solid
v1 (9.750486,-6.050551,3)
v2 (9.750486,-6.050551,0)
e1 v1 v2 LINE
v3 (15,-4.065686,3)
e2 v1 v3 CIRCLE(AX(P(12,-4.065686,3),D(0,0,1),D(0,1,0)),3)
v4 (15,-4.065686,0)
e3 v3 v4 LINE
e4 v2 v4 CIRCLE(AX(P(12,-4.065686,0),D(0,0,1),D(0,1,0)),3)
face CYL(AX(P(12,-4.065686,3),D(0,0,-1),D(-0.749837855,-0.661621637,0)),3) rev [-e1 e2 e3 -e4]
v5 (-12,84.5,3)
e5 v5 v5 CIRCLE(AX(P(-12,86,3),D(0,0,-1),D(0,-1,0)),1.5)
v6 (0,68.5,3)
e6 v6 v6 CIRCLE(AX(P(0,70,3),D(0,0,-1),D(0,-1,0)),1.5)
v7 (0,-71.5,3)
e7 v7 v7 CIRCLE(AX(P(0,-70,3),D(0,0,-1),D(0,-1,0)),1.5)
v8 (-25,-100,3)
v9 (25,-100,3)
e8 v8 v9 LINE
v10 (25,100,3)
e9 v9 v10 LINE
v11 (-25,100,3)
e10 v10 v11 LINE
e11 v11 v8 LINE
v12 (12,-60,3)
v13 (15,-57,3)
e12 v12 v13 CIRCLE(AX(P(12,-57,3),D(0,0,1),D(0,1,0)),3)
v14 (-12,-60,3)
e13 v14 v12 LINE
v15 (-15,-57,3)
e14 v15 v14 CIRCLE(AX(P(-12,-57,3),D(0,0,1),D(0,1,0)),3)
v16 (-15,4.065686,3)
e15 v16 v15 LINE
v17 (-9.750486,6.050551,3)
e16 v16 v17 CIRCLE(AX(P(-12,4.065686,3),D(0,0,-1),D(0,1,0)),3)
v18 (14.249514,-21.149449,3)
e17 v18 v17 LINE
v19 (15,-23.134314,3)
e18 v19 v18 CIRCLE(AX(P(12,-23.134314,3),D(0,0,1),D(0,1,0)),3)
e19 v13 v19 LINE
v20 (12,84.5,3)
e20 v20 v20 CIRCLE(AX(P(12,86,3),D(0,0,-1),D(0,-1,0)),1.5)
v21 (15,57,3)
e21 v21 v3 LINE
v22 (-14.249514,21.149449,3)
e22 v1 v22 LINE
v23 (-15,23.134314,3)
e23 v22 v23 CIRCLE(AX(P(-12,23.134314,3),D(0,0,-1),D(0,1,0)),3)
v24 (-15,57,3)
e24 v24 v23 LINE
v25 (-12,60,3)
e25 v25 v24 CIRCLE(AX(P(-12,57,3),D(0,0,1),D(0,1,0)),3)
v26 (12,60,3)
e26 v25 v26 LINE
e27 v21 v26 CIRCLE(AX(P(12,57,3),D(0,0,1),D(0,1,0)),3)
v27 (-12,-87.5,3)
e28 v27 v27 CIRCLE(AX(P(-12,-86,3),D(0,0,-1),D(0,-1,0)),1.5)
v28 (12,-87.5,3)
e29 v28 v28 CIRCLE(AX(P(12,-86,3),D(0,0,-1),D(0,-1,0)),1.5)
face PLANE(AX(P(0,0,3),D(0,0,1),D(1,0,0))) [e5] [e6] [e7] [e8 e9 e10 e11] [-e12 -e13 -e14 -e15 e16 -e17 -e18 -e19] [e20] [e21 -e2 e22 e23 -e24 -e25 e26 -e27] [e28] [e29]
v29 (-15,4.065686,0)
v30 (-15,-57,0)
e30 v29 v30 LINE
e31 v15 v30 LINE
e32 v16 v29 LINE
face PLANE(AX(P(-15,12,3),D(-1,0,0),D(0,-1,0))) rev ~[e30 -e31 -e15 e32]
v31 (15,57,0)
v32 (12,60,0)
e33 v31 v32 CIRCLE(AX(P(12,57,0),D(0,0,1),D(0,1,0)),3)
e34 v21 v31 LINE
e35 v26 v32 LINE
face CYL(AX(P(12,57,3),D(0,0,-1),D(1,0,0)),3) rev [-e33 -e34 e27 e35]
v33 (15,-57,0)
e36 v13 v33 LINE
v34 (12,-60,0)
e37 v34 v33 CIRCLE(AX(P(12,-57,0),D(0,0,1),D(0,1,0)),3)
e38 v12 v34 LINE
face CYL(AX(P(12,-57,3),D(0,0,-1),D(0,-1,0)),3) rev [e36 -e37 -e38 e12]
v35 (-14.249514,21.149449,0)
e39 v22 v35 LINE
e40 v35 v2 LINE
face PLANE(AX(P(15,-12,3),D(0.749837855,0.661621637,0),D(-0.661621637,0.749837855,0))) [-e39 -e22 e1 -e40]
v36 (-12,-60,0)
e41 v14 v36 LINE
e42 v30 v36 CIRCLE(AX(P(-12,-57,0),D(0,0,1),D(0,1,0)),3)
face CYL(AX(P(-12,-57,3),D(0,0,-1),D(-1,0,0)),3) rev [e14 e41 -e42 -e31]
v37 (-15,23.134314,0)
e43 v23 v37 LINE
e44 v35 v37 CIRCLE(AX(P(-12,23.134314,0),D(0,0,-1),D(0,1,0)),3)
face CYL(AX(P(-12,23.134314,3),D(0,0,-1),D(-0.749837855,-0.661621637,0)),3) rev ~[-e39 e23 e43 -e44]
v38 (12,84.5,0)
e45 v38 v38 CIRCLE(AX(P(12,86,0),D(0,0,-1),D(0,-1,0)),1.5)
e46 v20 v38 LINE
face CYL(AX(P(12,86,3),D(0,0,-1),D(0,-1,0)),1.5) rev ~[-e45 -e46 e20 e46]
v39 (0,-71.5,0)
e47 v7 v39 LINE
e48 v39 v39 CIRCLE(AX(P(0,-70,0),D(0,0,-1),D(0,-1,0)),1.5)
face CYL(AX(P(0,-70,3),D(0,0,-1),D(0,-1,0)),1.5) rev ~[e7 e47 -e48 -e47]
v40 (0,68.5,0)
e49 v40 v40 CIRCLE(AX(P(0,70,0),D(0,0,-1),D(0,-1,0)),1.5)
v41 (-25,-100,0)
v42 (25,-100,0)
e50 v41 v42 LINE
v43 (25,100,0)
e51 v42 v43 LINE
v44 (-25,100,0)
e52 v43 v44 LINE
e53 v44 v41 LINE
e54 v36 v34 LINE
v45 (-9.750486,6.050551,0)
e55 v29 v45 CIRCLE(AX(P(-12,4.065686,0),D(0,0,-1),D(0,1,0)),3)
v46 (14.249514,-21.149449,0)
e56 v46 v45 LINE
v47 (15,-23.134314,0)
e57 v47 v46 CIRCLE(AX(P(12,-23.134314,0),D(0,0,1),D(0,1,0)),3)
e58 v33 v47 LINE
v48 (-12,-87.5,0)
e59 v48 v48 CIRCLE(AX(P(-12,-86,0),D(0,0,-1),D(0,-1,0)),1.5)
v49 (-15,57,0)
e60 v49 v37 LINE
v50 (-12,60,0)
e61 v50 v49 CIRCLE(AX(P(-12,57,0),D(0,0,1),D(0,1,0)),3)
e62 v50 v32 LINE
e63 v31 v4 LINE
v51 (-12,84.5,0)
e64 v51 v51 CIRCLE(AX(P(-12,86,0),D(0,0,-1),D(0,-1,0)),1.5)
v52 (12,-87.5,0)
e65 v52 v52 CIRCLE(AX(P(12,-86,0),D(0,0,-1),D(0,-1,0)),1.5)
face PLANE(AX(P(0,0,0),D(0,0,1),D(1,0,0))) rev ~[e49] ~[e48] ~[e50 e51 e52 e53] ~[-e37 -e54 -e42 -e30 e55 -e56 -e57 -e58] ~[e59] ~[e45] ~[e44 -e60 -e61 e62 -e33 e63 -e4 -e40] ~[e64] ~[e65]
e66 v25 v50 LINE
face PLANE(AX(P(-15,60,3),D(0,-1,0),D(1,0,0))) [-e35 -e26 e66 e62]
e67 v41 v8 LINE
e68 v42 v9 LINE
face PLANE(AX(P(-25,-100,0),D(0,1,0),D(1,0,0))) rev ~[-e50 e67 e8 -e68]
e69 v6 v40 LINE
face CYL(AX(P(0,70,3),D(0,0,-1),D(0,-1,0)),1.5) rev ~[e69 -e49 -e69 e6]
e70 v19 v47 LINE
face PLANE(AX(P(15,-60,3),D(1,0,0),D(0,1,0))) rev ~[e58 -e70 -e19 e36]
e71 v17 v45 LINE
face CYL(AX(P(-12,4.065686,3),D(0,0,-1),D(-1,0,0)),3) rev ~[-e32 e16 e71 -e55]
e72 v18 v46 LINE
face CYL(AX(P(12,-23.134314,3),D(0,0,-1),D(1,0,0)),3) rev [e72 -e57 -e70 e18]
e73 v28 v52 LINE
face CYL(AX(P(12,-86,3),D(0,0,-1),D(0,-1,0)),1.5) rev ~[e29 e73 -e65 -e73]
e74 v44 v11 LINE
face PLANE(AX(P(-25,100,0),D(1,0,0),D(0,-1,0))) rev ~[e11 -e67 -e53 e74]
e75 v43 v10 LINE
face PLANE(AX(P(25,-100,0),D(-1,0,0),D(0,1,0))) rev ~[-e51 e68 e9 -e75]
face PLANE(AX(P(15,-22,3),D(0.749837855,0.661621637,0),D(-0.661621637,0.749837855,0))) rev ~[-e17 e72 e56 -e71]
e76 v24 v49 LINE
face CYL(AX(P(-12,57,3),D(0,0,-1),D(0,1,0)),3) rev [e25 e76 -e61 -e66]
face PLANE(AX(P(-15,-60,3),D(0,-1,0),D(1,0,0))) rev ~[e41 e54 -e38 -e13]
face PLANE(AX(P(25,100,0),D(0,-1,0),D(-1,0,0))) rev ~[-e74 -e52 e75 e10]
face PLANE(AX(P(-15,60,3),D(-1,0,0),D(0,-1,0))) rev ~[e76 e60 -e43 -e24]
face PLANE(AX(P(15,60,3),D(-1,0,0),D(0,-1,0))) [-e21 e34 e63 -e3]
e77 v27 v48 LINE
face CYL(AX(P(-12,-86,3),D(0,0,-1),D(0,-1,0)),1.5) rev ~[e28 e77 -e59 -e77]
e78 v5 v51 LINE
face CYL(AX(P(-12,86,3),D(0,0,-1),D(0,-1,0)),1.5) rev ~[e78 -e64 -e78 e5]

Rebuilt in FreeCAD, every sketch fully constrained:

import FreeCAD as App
import Part
import Sketcher

V = App.Vector


def edges_at(feature, points):
    """Names of the edges that pass closest to the given points."""
    edges = feature.Shape.Edges
    near = lambda p: min(range(len(edges)), key=lambda i: edges[i].distToShape(Part.Vertex(*p))[0])
    return sorted({f"Edge{near(p) + 1}" for p in points})


def add_polygon(sketch, points):
    """Adds a closed chain of lines whose ends are joined by coincident constraints."""
    first, n = sketch.GeometryCount, len(points)
    for a, b in zip(points, points[1:] + points[:1]):
        sketch.addGeometry(Part.LineSegment(App.Vector(*a, 0), App.Vector(*b, 0)), False)
    for i in range(n):
        sketch.addConstraint(Sketcher.Constraint("Coincident", first + i, 2, first + (i + 1) % n, 1))

doc = App.newDocument("Part")
body = doc.addObject("PartDesign::Body", "Body")

sketch1 = body.newObject("Sketcher::SketchObject", "Sketch")
sketch1.AttachmentSupport = (doc.getObject("XY_Plane"), [""])
sketch1.MapMode = "FlatFace"
add_polygon(sketch1, [(-25, 100), (-25, -100), (25, -100), (25, 100)])
sketch1.addConstraint([
    Sketcher.Constraint("Vertical", 0),
    Sketcher.Constraint("Horizontal", 1),
    Sketcher.Constraint("Vertical", 2),
    Sketcher.Constraint("Horizontal", 3),
    Sketcher.Constraint("Symmetric", 0, 2, 2, 2, -1, 1),
    Sketcher.Constraint("DistanceX", 1, 1, 1, 2, 50.0),
    Sketcher.Constraint("DistanceY", 0, 2, 0, 1, 200.0),
])
pad1 = body.newObject("PartDesign::Pad", "Pad")
pad1.Profile = sketch1
pad1.Length = 3

sketch2 = body.newObject("Sketcher::SketchObject", "Sketch001")
sketch2.AttachmentSupport = (doc.getObject("XY_Plane"), [""])
sketch2.MapMode = "FlatFace"
sketch2.AttachmentOffset = App.Placement(V(0, 0, 3), App.Rotation())
sketch2.addGeometry([
    Part.Circle(V(-12, -86, 0), V(0, 0, 1), 1.5),
    Part.Circle(V(12, -86, 0), V(0, 0, 1), 1.5),
    Part.Circle(V(0, -70, 0), V(0, 0, 1), 1.5),
    Part.Circle(V(0, 70, 0), V(0, 0, 1), 1.5),
    Part.Circle(V(12, 86, 0), V(0, 0, 1), 1.5),
    Part.Circle(V(-12, 86, 0), V(0, 0, 1), 1.5),
], False)
sketch2.addConstraint([
    Sketcher.Constraint("Equal", 0, 1),
    Sketcher.Constraint("Equal", 1, 2),
    Sketcher.Constraint("Equal", 2, 3),
    Sketcher.Constraint("Equal", 3, 4),
    Sketcher.Constraint("Equal", 4, 5),
    Sketcher.Constraint("Symmetric", 2, 3, 3, 3, -1, 1),
    Sketcher.Constraint("Symmetric", 0, 3, 4, 3, -1, 1),
    Sketcher.Constraint("Symmetric", 1, 3, 5, 3, -1, 1),
    Sketcher.Constraint("Symmetric", 0, 3, 1, 3, -2),
    Sketcher.Constraint("PointOnObject", 2, 3, -2),
    Sketcher.Constraint("Diameter", 0, 3.0),
    Sketcher.Constraint("DistanceX", 0, 3, -1, 1, 12.0),
    Sketcher.Constraint("DistanceY", 0, 3, -1, 1, 86.0),
    Sketcher.Constraint("DistanceY", 2, 3, -1, 1, 70.0),
])
doc.recompute()
hole = body.newObject("PartDesign::Hole", "Hole")
hole.Profile = sketch2
hole.ThreadType = "None"
hole.Diameter = 3
hole.DepthType = "Dimension"
hole.Depth = 8
hole.DrillPoint = "Angled"
hole.DrillPointAngle = 118

sketch3 = body.newObject("Sketcher::SketchObject", "Sketch002")
sketch3.AttachmentSupport = (doc.getObject("XY_Plane"), [""])
sketch3.MapMode = "FlatFace"
sketch3.AttachmentOffset = App.Placement(V(0, 0, 3), App.Rotation())
add_polygon(sketch3, [(-15, 22), (15, -12), (15, 60), (-15, 60)])
add_polygon(sketch3, [(-15, 12), (-15, -60), (15, -60), (15, -22)])
sketch3.addConstraint([
    Sketcher.Constraint("Vertical", 1),
    Sketcher.Constraint("Horizontal", 2),
    Sketcher.Constraint("Vertical", 3),
    Sketcher.Constraint("Vertical", 4),
    Sketcher.Constraint("Horizontal", 5),
    Sketcher.Constraint("Vertical", 6),
    Sketcher.Constraint("Symmetric", 1, 2, 4, 2, -1, 1),
    Sketcher.Constraint("Symmetric", 3, 2, 6, 2, -1, 1),
    Sketcher.Constraint("Parallel", 0, 7),
    Sketcher.Constraint("Vertical", 3, 2, 4, 2),
    Sketcher.Constraint("DistanceY", 0, 2, -1, 1, 12.0),
    Sketcher.Constraint("DistanceY", -1, 1, 1, 2, 60.0),
    Sketcher.Constraint("DistanceY", 6, 2, 0, 2, 10.0),
    Sketcher.Constraint("DistanceX", 2, 2, 2, 1, 30.0),
])
pocket1 = body.newObject("PartDesign::Pocket", "Pocket")
pocket1.Profile = sketch3
pocket1.Length = 3
doc.recompute()

fillet = body.newObject("PartDesign::Fillet", "Fillet")
fillet.Base = (pocket1, edges_at(pocket1, [
    (15, -12, 1.5),
    (-15, 22, 1.5),
    (15, 60, 1.5),
    (-15, 60, 1.5),
    (-15, 12, 1.5),
    (15, -22, 1.5),
    (-15, -60, 1.5),
    (15, -60, 1.5),
]))
fillet.Radius = 3

doc.recompute()
